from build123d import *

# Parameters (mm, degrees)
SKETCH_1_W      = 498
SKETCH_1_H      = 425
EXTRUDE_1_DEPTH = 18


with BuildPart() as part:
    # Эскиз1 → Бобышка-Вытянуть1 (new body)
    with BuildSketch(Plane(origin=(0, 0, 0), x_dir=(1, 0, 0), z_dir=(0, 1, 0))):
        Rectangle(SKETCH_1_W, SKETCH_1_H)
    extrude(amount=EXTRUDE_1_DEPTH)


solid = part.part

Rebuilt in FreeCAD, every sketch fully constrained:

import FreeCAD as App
import Part
import Sketcher

V = App.Vector

doc = App.newDocument("Part")
params = doc.addObject("Spreadsheet::Sheet", "Params")
for row, (alias, value) in enumerate([
    ("sketch1_width", "498 mm"),
    ("sketch1_height", "425 mm"),
    ("pad1_length", "18 mm"),
], start=1):
    params.set(f"A{row}", alias)
    params.set(f"B{row}", "=" + value)
    params.setAlias(f"B{row}", alias)

body = doc.addObject("PartDesign::Body", "Body")

sketch1 = body.newObject("Sketcher::SketchObject", "Sketch")
sketch1.AttachmentSupport = (doc.getObject("XZ_Plane"), [""])
sketch1.MapMode = "FlatFace"
sketch1.addGeometry([
    Part.LineSegment(V(-249, -212, 0), V(-249, 212, 0)),
    Part.LineSegment(V(-249, 212, 0), V(249, 212, 0)),
    Part.LineSegment(V(249, 212, 0), V(249, -212, 0)),
    Part.LineSegment(V(249, -212, 0), V(-249, -212, 0)),
], False)
sketch1.addConstraint([
    Sketcher.Constraint("Coincident", 0, 2, 1, 1),
    Sketcher.Constraint("Coincident", 1, 2, 2, 1),
    Sketcher.Constraint("Coincident", 2, 2, 3, 1),
    Sketcher.Constraint("Coincident", 3, 2, 0, 1),
    Sketcher.Constraint("Vertical", 0),
    Sketcher.Constraint("Horizontal", 1),
    Sketcher.Constraint("Vertical", 2),
    Sketcher.Constraint("Horizontal", 3),
    Sketcher.Constraint("Symmetric", 0, 2, 2, 2, -1, 1),
    Sketcher.Constraint("DistanceX", 1, 1, 1, 2, 498.0),
    Sketcher.Constraint("DistanceY", 0, 1, 0, 2, 425.0),
])
sketch1.setExpression("Constraints[9]", "Params.sketch1_width")
sketch1.setExpression("Constraints[10]", "Params.sketch1_height")
pad1 = body.newObject("PartDesign::Pad", "Pad")
pad1.Profile = sketch1
pad1.setExpression("Length", "Params.pad1_length")
pad1.Reversed = True

doc.recompute()
